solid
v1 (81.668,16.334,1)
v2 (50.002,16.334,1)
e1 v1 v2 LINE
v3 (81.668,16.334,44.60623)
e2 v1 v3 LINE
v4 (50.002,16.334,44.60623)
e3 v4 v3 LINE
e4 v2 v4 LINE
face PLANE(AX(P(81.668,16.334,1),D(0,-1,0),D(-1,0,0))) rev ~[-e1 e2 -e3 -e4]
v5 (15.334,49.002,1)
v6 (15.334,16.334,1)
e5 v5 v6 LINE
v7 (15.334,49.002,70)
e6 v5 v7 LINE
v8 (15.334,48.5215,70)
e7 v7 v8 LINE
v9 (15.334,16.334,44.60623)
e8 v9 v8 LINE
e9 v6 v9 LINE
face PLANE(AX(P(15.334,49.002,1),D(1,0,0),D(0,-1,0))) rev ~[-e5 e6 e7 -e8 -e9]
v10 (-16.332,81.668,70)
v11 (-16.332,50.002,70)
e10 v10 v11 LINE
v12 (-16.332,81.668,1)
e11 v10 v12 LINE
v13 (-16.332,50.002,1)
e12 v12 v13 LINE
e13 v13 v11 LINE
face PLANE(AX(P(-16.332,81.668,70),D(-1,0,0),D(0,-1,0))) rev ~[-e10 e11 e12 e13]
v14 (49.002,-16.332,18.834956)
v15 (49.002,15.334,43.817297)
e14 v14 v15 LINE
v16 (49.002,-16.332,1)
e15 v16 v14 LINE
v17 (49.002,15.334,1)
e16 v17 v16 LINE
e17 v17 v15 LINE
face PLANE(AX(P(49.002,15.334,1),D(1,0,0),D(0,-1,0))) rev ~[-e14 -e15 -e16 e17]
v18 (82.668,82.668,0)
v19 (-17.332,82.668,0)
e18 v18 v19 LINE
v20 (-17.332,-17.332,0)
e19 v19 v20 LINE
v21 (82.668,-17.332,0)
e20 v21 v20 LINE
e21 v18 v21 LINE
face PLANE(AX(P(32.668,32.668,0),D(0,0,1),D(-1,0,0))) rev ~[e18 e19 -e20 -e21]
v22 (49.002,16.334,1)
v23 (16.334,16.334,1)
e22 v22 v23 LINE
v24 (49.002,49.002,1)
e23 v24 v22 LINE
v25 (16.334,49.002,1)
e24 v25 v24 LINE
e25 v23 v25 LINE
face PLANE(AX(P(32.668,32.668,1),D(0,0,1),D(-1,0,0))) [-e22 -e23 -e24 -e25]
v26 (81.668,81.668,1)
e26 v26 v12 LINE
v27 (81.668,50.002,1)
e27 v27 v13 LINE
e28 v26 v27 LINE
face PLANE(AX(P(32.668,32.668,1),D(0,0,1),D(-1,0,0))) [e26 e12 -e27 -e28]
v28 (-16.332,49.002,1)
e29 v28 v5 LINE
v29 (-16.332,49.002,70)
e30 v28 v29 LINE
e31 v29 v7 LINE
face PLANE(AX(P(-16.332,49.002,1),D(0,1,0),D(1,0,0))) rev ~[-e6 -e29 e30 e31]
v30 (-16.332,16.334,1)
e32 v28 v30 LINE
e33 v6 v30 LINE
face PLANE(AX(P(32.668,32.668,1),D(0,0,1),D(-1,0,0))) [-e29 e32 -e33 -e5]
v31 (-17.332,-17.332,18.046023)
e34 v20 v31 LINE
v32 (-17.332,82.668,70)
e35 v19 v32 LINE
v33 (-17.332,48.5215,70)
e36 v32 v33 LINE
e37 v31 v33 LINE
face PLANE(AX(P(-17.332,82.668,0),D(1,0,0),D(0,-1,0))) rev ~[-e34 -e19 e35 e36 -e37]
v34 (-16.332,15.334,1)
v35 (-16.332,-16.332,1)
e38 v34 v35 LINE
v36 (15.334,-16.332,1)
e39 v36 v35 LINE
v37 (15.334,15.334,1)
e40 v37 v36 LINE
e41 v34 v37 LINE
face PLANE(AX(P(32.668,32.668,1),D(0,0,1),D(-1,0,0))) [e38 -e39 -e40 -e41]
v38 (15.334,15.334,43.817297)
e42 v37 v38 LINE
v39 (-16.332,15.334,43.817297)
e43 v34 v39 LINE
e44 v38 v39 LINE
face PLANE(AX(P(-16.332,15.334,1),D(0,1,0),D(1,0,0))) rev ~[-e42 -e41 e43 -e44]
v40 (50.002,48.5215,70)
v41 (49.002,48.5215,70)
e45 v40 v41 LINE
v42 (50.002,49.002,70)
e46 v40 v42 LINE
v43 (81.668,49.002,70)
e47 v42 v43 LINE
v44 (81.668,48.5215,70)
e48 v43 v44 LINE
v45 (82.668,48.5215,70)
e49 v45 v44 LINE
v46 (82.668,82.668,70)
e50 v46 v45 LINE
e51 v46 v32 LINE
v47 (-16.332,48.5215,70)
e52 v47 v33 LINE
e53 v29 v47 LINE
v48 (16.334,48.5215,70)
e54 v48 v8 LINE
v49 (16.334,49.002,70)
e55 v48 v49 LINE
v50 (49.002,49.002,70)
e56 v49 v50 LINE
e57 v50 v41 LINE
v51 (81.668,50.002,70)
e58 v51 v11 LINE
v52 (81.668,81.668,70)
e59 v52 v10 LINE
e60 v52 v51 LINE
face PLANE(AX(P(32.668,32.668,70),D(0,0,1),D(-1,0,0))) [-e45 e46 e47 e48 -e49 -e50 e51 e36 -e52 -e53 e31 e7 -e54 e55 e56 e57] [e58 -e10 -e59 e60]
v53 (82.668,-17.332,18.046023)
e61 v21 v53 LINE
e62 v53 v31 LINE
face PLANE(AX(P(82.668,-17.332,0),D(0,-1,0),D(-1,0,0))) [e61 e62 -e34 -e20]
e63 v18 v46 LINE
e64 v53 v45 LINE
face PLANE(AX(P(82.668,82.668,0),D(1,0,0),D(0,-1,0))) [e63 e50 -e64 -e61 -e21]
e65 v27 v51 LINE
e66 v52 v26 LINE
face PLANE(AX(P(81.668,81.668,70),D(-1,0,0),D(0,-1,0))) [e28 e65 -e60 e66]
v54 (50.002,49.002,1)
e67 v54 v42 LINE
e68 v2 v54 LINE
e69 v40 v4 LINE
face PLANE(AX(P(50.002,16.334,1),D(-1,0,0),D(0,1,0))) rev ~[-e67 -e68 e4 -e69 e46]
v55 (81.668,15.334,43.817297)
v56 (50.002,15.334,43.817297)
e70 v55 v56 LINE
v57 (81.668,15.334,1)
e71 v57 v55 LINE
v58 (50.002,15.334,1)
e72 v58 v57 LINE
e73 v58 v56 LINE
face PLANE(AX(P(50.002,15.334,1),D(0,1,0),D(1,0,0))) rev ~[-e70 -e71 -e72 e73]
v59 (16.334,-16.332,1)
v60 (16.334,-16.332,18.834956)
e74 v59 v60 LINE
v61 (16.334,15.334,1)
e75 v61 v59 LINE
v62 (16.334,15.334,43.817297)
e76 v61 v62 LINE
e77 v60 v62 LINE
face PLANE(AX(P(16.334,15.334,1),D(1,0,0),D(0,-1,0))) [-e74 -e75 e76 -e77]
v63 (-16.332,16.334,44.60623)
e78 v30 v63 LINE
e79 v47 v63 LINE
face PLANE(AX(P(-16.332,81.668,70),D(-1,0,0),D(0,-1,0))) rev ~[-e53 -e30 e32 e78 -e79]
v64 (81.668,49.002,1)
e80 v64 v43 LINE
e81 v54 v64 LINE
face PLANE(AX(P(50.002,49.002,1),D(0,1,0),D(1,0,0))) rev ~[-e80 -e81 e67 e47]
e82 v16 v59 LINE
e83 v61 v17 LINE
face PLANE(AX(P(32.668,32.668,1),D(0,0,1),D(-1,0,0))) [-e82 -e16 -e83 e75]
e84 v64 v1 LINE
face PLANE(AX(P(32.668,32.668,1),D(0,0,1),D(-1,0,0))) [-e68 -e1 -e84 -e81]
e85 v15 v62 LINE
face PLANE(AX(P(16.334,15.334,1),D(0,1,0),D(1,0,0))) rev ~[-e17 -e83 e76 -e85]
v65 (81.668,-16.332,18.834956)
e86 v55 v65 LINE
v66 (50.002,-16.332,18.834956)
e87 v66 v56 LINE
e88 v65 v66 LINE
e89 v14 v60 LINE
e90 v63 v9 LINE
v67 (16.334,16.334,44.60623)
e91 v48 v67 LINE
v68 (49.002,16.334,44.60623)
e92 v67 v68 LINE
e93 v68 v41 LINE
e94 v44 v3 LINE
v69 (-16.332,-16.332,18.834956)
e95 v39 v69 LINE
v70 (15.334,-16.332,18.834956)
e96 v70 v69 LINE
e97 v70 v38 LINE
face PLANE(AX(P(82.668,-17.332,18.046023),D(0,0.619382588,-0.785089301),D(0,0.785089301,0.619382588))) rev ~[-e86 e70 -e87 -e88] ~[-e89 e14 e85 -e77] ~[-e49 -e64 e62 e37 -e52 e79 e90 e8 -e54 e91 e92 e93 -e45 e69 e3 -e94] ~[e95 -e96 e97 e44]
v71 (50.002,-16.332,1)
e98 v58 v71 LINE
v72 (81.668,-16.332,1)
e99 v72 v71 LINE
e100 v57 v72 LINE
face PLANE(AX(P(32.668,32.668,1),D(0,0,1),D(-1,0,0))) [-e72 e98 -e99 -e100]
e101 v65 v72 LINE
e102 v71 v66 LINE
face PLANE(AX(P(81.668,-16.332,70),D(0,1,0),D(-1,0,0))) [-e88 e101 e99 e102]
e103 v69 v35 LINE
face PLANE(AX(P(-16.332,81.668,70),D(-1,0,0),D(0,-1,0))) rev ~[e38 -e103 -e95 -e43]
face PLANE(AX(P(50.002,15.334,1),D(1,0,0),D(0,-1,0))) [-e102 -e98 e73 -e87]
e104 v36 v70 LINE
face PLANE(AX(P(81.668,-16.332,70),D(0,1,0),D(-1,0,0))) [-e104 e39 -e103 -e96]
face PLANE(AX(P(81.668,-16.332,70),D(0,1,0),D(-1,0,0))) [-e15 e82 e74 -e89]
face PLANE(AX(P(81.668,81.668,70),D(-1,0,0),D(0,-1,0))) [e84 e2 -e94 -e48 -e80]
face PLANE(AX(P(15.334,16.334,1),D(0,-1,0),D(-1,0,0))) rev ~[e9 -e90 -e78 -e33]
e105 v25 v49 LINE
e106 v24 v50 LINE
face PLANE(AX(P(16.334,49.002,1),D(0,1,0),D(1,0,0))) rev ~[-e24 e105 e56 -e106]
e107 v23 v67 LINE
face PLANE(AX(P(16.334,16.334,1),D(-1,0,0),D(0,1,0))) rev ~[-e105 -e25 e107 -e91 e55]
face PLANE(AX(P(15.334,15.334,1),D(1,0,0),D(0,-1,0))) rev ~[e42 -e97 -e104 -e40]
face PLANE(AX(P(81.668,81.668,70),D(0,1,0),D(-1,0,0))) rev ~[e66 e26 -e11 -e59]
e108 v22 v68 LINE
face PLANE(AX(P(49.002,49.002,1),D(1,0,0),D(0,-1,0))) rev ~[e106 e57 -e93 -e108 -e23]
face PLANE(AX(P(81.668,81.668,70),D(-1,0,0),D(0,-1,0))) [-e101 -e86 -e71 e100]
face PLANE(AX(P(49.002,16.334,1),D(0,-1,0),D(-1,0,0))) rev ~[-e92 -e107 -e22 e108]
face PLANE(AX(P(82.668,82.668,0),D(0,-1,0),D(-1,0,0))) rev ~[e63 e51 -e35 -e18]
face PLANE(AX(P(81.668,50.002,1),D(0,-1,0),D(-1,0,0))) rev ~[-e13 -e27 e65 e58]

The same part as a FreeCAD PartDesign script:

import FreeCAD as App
import Part
import Sketcher
Q = App.Units.Quantity

doc = App.newDocument("Part")
params = doc.addObject("Spreadsheet::Sheet", "Params")
for row, (alias, value) in enumerate([
    ("sketch1_width", "100 mm"),
    ("pad1_length", "70 mm"),
    ("sketch2_width", "98 mm"),
    ("pocket1_length", "69 mm"),
    ("sketch3_width", "1 mm"),
    ("sketch3_width2", "98 mm"),
    ("pad2_length", "69 mm"),
], start=1):
    params.set(f"A{row}", alias)
    params.set(f"B{row}", "=" + value)
    params.setAlias(f"B{row}", alias)

body = doc.addObject("PartDesign::Body", "Body")

# Sketch on XY plane
sketch1 = body.newObject("Sketcher::SketchObject", "Sketch")
sketch1.AttachmentSupport = (doc.getObject("XY_Plane"), [""])
sketch1.MapMode = "FlatFace"
sketch1.addGeometry([
    Part.LineSegment(App.Vector(-50, 50, 0), App.Vector(-50, -50, 0)),
    Part.LineSegment(App.Vector(-50, -50, 0), App.Vector(50, -50, 0)),
    Part.LineSegment(App.Vector(50, -50, 0), App.Vector(50, 50, 0)),
    Part.LineSegment(App.Vector(50, 50, 0), App.Vector(-50, 50, 0)),
], False)
sketch1.addConstraint([
    Sketcher.Constraint("Coincident", 0, 2, 1, 1),
    Sketcher.Constraint("Coincident", 1, 2, 2, 1),
    Sketcher.Constraint("Coincident", 2, 2, 3, 1),
    Sketcher.Constraint("Coincident", 3, 2, 0, 1),
    Sketcher.Constraint("Vertical", 0),
    Sketcher.Constraint("Horizontal", 1),
    Sketcher.Constraint("Vertical", 2),
    Sketcher.Constraint("Horizontal", 3),
    Sketcher.Constraint("Symmetric", 0, 2, 2, 2, -1, 1),
    Sketcher.Constraint("Equal", 3, 0),
    Sketcher.Constraint("DistanceX", 1, 1, 1, 2, Q("100 mm")),
])
sketch1.setExpression("Constraints[10]", "Params.sketch1_width")
pad1 = body.newObject("PartDesign::Pad", "Pad")
pad1.Profile = sketch1
pad1.setExpression("Length", "Params.pad1_length")

# Sketch on XY plane
sketch2 = body.newObject("Sketcher::SketchObject", "Sketch001")
sketch2.AttachmentSupport = (doc.getObject("XY_Plane"), [""])
sketch2.MapMode = "FlatFace"
sketch2.AttachmentOffset = App.Placement(App.Vector(0, 0, 70), App.Rotation())
sketch2.addGeometry([
    Part.LineSegment(App.Vector(-49, 49, 0), App.Vector(-49, -49, 0)),
    Part.LineSegment(App.Vector(-49, -49, 0), App.Vector(49, -49, 0)),
    Part.LineSegment(App.Vector(49, -49, 0), App.Vector(49, 49, 0)),
    Part.LineSegment(App.Vector(49, 49, 0), App.Vector(-49, 49, 0)),
], False)
sketch2.addConstraint([
    Sketcher.Constraint("Coincident", 0, 2, 1, 1),
    Sketcher.Constraint("Coincident", 1, 2, 2, 1),
    Sketcher.Constraint("Coincident", 2, 2, 3, 1),
    Sketcher.Constraint("Coincident", 3, 2, 0, 1),
    Sketcher.Constraint("Vertical", 0),
    Sketcher.Constraint("Horizontal", 1),
    Sketcher.Constraint("Vertical", 2),
    Sketcher.Constraint("Horizontal", 3),
    Sketcher.Constraint("Symmetric", 0, 2, 2, 2, -1, 1),
    Sketcher.Constraint("Equal", 3, 0),
    Sketcher.Constraint("DistanceX", 1, 1, 1, 2, Q("98 mm")),
])
sketch2.setExpression("Constraints[10]", "Params.sketch2_width")
pocket1 = body.newObject("PartDesign::Pocket", "Pocket")
pocket1.Profile = sketch2
pocket1.setExpression("Length", "Params.pocket1_length")

# Sketch on XY plane
sketch3 = body.newObject("Sketcher::SketchObject", "Sketch002")
sketch3.AttachmentSupport = (doc.getObject("XY_Plane"), [""])
sketch3.MapMode = "FlatFace"
sketch3.AttachmentOffset = App.Placement(App.Vector(0, 0, 1), App.Rotation())
sketch3.addGeometry([
    Part.LineSegment(App.Vector(49, 17.3, 0), App.Vector(17.3, 17.3, 0)),  # 0
    Part.LineSegment(App.Vector(17.3, 17.3, 0), App.Vector(17.3, 49, 0)),  # 1
    Part.LineSegment(App.Vector(17.3, 49, 0), App.Vector(16.3, 49, 0)),  # 2
    Part.LineSegment(App.Vector(16.3, 49, 0), App.Vector(16.3, 17.3, 0)),  # 3
    Part.LineSegment(App.Vector(16.3, 17.3, 0), App.Vector(-16.3, 17.3, 0)),  # 4
    Part.LineSegment(App.Vector(-16.3, 17.3, 0), App.Vector(-16.3, 49, 0)),  # 5
    Part.LineSegment(App.Vector(-16.3, 49, 0), App.Vector(-17.3, 49, 0)),  # 6
    Part.LineSegment(App.Vector(-17.3, 49, 0), App.Vector(-17.3, 17.3, 0)),  # 7
    Part.LineSegment(App.Vector(-17.3, 17.3, 0), App.Vector(-49, 17.3, 0)),  # 8
    Part.LineSegment(App.Vector(-49, 17.3, 0), App.Vector(-49, 16.3, 0)),  # 9
    Part.LineSegment(App.Vector(-49, 16.3, 0), App.Vector(-17.3, 16.3, 0)),  # 10
    Part.LineSegment(App.Vector(-17.3, 16.3, 0), App.Vector(-17.3, -16.3, 0)),  # 11
    Part.LineSegment(App.Vector(-17.3, -16.3, 0), App.Vector(-49, -16.3, 0)),  # 12
    Part.LineSegment(App.Vector(-49, -16.3, 0), App.Vector(-49, -17.3, 0)),  # 13
    Part.LineSegment(App.Vector(-49, -17.3, 0), App.Vector(49, -17.3, 0)),  # 14
    Part.LineSegment(App.Vector(49, -17.3, 0), App.Vector(49, -16.3, 0)),  # 15
    Part.LineSegment(App.Vector(49, -16.3, 0), App.Vector(17.3, -16.3, 0)),  # 16
    Part.LineSegment(App.Vector(17.3, -16.3, 0), App.Vector(17.3, 16.3, 0)),  # 17
    Part.LineSegment(App.Vector(17.3, 16.3, 0), App.Vector(49, 16.3, 0)),  # 18
    Part.LineSegment(App.Vector(49, 16.3, 0), App.Vector(49, 17.3, 0)),  # 19
    Part.LineSegment(App.Vector(-16.3, -16.3, 0), App.Vector(-16.3, 16.3, 0)),  # 20
    Part.LineSegment(App.Vector(-16.3, 16.3, 0), App.Vector(16.3, 16.3, 0)),  # 21
    Part.LineSegment(App.Vector(16.3, 16.3, 0), App.Vector(16.3, -16.3, 0)),  # 22
    Part.LineSegment(App.Vector(16.3, -16.3, 0), App.Vector(-16.3, -16.3, 0)),  # 23
], False)
sketch3.addConstraint([
    Sketcher.Constraint("Coincident", 0, 2, 1, 1),
    Sketcher.Constraint("Coincident", 1, 2, 2, 1),
    Sketcher.Constraint("Coincident", 2, 2, 3, 1),
    Sketcher.Constraint("Coincident", 3, 2, 4, 1),
    Sketcher.Constraint("Coincident", 4, 2, 5, 1),
    Sketcher.Constraint("Coincident", 5, 2, 6, 1),
    Sketcher.Constraint("Coincident", 6, 2, 7, 1),
    Sketcher.Constraint("Coincident", 7, 2, 8, 1),
    Sketcher.Constraint("Coincident", 8, 2, 9, 1),
    Sketcher.Constraint("Coincident", 9, 2, 10, 1),
    Sketcher.Constraint("Coincident", 10, 2, 11, 1),
    Sketcher.Constraint("Coincident", 11, 2, 12, 1),
    Sketcher.Constraint("Coincident", 12, 2, 13, 1),
    Sketcher.Constraint("Coincident", 13, 2, 14, 1),
    Sketcher.Constraint("Coincident", 14, 2, 15, 1),
    Sketcher.Constraint("Coincident", 15, 2, 16, 1),
    Sketcher.Constraint("Coincident", 16, 2, 17, 1),
    Sketcher.Constraint("Coincident", 17, 2, 18, 1),
    Sketcher.Constraint("Coincident", 18, 2, 19, 1),
    Sketcher.Constraint("Coincident", 19, 2, 0, 1),
    Sketcher.Constraint("Coincident", 20, 2, 21, 1),
    Sketcher.Constraint("Coincident", 21, 2, 22, 1),
    Sketcher.Constraint("Coincident", 22, 2, 23, 1),
    Sketcher.Constraint("Coincident", 23, 2, 20, 1),
    Sketcher.Constraint("Horizontal", 0),
    Sketcher.Constraint("Vertical", 1),
    Sketcher.Constraint("Horizontal", 2),
    Sketcher.Constraint("Vertical", 3),
    Sketcher.Constraint("Horizontal", 4),
    Sketcher.Constraint("Vertical", 5),
    Sketcher.Constraint("Horizontal", 6),
    Sketcher.Constraint("Vertical", 7),
    Sketcher.Constraint("Horizontal", 8),
    Sketcher.Constraint("Vertical", 9),
    Sketcher.Constraint("Horizontal", 10),
    Sketcher.Constraint("Vertical", 11),
    Sketcher.Constraint("Horizontal", 12),
    Sketcher.Constraint("Vertical", 13),
    Sketcher.Constraint("Horizontal", 14),
    Sketcher.Constraint("Vertical", 15),
    Sketcher.Constraint("Horizontal", 16),
    Sketcher.Constraint("Vertical", 17),
    Sketcher.Constraint("Horizontal", 18),
    Sketcher.Constraint("Vertical", 19),
    Sketcher.Constraint("Vertical", 20),
    Sketcher.Constraint("Horizontal", 21),
    Sketcher.Constraint("Vertical", 22),
    Sketcher.Constraint("Horizontal", 23),
    Sketcher.Constraint("Symmetric", 8, 2, 14, 2, -1, 1),
    Sketcher.Constraint("Symmetric", 10, 2, 16, 2, -1, 1),
    Sketcher.Constraint("Symmetric", 12, 2, 18, 2, -1, 1),
    Sketcher.Constraint("Symmetric", 20, 2, 22, 2, -1, 1),
    Sketcher.Constraint("Symmetric", 2, 2, 5, 2, -2),
    Sketcher.Constraint("Symmetric", 0, 2, 7, 2, -2),
    Sketcher.Constraint("Symmetric", 12, 2, 15, 2, -2),
    Sketcher.Constraint("Horizontal", 0, 2, 3, 2),
    Sketcher.Constraint("Horizontal", 18, 2, 20, 2),
    Sketcher.Constraint("Vertical", 7, 2, 10, 2),
    Sketcher.Constraint("Vertical", 5, 2, 20, 2),
    Sketcher.Constraint("Equal", 18, 1),
    Sketcher.Constraint("Equal", 6, 9),
    Sketcher.Constraint("Equal", 23, 11),
    Sketcher.Constraint("DistanceX", 2, 2, 2, 1, Q("1 mm")),
    Sketcher.Constraint("DistanceX", 14, 1, 14, 2, Q("98 mm")),
    Sketcher.Constraint("DistanceX", 0, 2, 0, 1, Q("31.666 mm")),
])
sketch3.setExpression("Constraints[62]", "Params.sketch3_width")
sketch3.setExpression("Constraints[63]", "Params.sketch3_width2")
pad2 = body.newObject("PartDesign::Pad", "Pad001")
pad2.Profile = sketch3
pad2.setExpression("Length", "Params.pad2_length")

# Sketch on YZ plane
sketch4 = body.newObject("Sketcher::SketchObject", "Sketch003")
sketch4.AttachmentSupport = (doc.getObject("YZ_Plane"), [""])
sketch4.MapMode = "FlatFace"
sketch4.AttachmentOffset = App.Placement(App.Vector(0, 0, -50), App.Rotation())
sketch4.addGeometry([
    Part.LineSegment(App.Vector(50, 18, 0), App.Vector(-16, 70, 0)),
    Part.LineSegment(App.Vector(-16, 70, 0), App.Vector(50, 70, 0)),
    Part.LineSegment(App.Vector(50, 70, 0), App.Vector(50, 18, 0)),
], False)
sketch4.addConstraint([
    Sketcher.Constraint("Coincident", 0, 2, 1, 1),
    Sketcher.Constraint("Coincident", 1, 2, 2, 1),
    Sketcher.Constraint("Coincident", 2, 2, 0, 1),
    Sketcher.Constraint("Horizontal", 1),
    Sketcher.Constraint("Vertical", 2),
    Sketcher.Constraint("DistanceY", -1, 1, 0, 2, Q("70 mm")),
    Sketcher.Constraint("DistanceX", -1, 1, 1, 2, Q("50 mm")),
    Sketcher.Constraint("DistanceX", 1, 1, 1, 2, Q("65.8535 mm")),
    Sketcher.Constraint("DistanceY", 2, 2, 2, 1, Q("51.953977 mm")),
])
pocket2 = body.newObject("PartDesign::Pocket", "Pocket001")
pocket2.Profile = sketch4
pocket2.Type = "ThroughAll"
pocket2.Reversed = True
body2 = doc.addObject("PartDesign::Body", "Body001")
doc.recompute()

body.Placement = App.Placement(App.Vector(32.668, 32.668, 0), App.Rotation(App.Vector(0, 0, -1), 180))
boolean = body2.newObject("PartDesign::Boolean", "Boolean")
boolean.Type = "Fuse"
boolean.addObjects([body])

doc.recompute()
